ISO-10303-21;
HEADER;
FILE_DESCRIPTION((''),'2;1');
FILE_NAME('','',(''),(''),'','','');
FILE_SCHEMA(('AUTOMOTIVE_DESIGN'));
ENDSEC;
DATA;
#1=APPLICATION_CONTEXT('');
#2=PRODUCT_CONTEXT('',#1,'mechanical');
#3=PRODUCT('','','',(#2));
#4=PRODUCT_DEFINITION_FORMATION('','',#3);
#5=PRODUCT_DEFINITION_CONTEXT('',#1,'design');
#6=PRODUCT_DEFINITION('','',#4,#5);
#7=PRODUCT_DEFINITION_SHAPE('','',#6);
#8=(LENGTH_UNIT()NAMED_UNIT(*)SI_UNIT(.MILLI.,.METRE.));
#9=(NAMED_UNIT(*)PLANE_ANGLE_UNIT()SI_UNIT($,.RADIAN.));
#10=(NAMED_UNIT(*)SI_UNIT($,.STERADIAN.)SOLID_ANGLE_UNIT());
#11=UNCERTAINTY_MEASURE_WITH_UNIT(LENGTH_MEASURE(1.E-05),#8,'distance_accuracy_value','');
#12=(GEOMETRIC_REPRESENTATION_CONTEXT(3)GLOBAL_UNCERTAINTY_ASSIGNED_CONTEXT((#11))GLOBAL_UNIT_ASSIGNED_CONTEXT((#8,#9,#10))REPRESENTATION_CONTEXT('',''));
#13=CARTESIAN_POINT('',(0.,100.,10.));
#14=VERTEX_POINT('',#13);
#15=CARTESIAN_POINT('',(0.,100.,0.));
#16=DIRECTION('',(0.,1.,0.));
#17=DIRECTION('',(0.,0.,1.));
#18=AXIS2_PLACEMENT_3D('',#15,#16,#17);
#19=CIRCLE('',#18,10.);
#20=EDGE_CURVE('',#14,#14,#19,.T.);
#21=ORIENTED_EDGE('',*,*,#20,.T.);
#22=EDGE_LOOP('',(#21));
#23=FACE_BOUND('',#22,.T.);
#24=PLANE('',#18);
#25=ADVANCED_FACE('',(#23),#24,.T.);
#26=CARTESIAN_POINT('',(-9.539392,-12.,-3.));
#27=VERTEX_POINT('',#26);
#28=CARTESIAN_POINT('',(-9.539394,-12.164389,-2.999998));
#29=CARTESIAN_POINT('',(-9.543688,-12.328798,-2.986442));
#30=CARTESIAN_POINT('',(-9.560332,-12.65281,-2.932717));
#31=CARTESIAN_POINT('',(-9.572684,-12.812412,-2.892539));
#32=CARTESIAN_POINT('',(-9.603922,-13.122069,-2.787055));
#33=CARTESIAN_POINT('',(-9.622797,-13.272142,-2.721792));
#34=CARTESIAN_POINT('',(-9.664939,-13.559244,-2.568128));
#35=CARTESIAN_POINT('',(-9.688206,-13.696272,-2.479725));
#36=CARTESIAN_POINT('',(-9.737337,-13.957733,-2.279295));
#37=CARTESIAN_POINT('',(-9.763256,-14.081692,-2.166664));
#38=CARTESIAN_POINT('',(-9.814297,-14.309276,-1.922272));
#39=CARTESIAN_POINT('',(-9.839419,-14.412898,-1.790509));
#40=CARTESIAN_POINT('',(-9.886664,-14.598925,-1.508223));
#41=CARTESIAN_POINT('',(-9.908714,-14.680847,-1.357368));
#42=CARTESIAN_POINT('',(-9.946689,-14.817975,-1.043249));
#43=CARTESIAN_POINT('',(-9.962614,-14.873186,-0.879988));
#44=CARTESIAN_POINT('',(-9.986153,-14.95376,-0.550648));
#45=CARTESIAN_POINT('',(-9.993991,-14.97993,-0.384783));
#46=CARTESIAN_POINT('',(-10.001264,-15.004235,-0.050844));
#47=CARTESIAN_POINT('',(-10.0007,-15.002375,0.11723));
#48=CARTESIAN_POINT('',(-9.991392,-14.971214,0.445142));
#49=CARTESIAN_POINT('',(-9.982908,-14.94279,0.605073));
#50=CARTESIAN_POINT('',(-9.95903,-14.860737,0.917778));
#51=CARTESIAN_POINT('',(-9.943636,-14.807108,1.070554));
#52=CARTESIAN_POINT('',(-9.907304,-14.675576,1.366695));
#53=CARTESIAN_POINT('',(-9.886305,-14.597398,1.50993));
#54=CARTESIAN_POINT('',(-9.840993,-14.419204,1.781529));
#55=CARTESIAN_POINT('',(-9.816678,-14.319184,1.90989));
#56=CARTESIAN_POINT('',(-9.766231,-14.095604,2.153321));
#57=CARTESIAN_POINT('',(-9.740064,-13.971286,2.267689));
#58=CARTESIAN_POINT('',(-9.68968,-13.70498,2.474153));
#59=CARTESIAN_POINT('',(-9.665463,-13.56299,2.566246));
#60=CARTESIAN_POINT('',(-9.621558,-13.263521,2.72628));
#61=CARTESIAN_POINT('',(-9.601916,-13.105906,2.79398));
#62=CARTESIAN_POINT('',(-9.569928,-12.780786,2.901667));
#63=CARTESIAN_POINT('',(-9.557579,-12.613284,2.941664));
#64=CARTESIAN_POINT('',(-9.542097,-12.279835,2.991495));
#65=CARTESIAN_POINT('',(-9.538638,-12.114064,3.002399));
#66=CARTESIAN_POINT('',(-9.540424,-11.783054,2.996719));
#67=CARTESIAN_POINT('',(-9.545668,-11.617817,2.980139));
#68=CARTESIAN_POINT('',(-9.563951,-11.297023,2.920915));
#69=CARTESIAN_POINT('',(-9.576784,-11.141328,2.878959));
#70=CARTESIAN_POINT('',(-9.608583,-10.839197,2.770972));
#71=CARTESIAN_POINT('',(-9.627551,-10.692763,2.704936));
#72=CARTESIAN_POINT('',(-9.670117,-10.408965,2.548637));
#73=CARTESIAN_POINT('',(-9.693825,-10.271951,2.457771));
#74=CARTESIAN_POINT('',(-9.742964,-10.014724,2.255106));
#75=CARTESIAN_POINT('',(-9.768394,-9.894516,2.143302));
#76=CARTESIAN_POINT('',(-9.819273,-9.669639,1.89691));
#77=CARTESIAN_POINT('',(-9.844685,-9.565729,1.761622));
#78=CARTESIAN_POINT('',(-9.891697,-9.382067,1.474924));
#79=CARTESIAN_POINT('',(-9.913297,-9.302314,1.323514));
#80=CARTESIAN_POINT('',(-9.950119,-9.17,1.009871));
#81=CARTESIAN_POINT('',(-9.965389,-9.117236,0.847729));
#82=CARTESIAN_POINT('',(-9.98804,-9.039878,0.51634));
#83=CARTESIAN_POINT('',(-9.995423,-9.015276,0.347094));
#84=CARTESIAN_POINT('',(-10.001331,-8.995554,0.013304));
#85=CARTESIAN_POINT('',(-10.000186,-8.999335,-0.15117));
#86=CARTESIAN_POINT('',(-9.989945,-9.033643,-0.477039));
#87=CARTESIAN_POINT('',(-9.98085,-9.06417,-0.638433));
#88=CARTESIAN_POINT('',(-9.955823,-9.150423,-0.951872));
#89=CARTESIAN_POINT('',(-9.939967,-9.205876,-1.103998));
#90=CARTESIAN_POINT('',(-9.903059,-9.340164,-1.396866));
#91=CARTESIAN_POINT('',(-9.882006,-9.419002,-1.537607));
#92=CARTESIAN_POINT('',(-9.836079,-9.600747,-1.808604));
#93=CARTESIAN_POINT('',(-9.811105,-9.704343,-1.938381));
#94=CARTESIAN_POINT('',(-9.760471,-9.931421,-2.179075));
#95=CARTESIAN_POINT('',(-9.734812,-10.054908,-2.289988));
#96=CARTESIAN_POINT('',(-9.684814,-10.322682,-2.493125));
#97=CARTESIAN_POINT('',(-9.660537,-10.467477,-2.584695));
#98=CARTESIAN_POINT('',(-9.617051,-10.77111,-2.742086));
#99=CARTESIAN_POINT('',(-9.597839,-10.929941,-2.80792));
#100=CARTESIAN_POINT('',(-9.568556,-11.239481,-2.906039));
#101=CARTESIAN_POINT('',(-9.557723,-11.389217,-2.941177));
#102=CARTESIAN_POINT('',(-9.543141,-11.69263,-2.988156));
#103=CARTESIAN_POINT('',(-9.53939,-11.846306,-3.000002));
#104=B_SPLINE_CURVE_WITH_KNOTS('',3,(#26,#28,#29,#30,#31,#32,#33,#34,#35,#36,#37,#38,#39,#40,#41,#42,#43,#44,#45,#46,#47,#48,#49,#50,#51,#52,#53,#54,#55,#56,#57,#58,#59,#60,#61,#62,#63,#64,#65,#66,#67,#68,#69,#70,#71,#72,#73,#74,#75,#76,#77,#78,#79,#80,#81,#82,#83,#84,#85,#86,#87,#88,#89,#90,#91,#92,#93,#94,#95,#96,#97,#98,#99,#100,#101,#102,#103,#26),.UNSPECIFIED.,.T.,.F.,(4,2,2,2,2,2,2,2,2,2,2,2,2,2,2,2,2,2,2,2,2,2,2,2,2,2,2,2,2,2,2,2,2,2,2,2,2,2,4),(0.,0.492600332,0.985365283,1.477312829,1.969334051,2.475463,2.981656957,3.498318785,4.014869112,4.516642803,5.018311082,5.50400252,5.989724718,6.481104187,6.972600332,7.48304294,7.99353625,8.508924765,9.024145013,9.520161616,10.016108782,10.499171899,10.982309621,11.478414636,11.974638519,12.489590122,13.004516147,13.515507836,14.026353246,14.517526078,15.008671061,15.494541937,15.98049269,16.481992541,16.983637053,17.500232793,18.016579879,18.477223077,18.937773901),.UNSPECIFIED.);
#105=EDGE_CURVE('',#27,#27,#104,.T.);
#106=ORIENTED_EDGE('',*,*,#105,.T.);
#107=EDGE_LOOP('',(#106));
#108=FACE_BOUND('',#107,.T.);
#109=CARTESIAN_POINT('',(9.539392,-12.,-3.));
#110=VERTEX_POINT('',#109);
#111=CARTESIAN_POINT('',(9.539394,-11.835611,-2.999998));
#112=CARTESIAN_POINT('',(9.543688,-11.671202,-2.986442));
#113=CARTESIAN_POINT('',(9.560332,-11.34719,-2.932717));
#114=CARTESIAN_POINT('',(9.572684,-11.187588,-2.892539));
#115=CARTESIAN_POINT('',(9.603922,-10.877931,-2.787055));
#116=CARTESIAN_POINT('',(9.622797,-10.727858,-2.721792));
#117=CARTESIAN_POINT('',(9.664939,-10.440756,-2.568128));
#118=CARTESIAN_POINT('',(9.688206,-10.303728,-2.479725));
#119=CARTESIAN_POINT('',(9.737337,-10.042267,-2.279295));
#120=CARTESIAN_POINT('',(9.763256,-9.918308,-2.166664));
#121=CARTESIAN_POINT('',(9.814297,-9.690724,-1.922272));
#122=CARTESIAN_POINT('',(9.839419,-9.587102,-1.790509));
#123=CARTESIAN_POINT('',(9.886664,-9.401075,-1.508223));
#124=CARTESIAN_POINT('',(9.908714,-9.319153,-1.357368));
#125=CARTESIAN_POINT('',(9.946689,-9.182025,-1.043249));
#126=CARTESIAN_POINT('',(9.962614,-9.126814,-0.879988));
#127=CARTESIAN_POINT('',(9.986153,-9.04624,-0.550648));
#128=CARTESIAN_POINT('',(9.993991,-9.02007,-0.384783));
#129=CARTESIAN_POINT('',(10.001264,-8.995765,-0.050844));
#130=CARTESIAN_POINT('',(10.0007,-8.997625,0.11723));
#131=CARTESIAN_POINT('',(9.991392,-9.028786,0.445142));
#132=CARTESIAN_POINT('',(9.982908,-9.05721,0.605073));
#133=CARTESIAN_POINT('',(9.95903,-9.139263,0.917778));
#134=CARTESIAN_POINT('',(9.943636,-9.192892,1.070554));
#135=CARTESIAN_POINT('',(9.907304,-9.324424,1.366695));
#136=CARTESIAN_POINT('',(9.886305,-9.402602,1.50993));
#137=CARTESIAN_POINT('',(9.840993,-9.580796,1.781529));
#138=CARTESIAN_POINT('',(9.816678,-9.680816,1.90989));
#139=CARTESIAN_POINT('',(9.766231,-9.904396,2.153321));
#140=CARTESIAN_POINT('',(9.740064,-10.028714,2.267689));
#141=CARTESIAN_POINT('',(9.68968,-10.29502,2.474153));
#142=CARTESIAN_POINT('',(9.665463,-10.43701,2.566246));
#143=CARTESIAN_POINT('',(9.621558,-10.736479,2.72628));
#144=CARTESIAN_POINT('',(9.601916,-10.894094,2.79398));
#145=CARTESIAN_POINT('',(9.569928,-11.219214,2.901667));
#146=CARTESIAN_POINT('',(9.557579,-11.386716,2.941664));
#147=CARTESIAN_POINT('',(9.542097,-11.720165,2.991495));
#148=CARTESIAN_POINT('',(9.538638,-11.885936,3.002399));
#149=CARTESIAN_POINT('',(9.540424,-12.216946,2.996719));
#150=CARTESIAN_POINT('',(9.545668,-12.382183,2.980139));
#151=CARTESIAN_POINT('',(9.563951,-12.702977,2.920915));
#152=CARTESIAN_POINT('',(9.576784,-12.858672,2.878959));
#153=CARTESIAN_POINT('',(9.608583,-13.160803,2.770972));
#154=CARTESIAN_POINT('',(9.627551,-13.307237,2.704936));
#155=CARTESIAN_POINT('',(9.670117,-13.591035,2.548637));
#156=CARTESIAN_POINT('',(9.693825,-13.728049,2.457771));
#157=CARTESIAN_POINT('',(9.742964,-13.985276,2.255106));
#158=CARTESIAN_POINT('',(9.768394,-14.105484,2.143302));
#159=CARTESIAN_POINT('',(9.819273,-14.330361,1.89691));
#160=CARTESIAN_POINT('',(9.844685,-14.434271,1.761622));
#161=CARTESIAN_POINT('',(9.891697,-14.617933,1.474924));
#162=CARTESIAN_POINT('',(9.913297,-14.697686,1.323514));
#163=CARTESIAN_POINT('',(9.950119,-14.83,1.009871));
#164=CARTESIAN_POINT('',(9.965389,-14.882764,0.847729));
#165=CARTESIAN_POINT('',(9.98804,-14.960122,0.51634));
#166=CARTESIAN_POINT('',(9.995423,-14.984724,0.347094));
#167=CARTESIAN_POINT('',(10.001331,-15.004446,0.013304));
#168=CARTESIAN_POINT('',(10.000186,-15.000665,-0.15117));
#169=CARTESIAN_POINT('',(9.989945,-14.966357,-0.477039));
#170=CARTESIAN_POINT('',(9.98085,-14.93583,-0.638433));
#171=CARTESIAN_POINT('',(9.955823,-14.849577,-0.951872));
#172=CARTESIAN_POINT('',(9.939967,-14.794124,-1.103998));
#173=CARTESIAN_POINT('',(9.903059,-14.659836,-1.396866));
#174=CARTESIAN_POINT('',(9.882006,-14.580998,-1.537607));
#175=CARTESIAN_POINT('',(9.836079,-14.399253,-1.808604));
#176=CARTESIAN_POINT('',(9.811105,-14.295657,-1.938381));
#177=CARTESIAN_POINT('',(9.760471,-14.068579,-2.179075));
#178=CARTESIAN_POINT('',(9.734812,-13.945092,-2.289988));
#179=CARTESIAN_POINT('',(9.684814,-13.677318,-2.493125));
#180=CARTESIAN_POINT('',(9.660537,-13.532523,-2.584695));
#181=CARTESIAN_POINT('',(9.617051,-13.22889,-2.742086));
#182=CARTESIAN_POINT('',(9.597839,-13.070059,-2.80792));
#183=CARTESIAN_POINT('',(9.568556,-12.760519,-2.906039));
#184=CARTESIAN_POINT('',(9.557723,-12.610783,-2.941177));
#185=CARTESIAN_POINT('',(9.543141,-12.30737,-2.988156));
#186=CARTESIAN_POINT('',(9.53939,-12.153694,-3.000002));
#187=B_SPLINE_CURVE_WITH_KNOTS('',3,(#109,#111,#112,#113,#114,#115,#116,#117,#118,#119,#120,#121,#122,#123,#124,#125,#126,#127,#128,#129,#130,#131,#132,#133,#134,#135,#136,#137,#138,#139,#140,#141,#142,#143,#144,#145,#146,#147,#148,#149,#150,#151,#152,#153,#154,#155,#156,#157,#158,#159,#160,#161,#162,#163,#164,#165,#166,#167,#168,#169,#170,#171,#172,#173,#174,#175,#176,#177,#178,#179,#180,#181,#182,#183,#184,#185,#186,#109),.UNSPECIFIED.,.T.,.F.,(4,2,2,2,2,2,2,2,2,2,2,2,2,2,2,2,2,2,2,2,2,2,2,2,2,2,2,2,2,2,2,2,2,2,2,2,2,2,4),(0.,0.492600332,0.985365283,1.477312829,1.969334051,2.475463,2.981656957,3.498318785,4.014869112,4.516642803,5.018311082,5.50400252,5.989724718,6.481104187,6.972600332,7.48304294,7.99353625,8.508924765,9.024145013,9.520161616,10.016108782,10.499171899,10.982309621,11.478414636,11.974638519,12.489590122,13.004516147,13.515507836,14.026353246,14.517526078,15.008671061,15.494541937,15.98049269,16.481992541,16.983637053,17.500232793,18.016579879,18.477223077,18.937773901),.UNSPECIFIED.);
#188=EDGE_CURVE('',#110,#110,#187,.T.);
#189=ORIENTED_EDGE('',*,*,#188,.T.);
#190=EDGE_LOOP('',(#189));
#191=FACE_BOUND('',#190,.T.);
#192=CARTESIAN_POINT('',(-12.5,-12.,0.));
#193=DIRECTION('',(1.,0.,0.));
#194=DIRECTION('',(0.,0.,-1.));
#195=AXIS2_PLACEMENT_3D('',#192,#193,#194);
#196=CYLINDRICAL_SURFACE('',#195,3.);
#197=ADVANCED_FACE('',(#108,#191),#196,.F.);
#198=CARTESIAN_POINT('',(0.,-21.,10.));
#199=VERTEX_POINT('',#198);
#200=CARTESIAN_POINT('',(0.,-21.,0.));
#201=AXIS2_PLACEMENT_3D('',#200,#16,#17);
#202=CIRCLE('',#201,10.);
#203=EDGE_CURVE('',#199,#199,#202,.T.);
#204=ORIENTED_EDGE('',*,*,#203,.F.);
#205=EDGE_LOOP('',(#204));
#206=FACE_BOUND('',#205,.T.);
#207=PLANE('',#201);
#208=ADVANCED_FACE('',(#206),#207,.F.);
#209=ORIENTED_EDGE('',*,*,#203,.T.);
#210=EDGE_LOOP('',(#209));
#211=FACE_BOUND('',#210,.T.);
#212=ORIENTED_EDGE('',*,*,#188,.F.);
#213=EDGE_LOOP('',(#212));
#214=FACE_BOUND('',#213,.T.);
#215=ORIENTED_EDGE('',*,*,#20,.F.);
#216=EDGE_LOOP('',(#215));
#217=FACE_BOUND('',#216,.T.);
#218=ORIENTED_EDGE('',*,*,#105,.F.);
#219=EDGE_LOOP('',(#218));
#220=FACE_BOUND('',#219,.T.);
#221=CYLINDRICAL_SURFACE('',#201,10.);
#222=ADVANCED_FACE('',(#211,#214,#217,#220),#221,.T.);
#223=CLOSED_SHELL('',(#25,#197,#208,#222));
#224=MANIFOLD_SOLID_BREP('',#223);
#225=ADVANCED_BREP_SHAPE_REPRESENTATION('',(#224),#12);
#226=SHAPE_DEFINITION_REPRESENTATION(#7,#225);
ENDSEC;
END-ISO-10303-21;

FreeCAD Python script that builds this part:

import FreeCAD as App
import Part
import Sketcher

V = App.Vector

doc = App.newDocument("Part")
params = doc.addObject("Spreadsheet::Sheet", "Params")
for row, (alias, value) in enumerate([
    ("sketch1_diameter", "20 mm"),
    ("pad1_length", "100 mm"),
    ("pad1_length2", "21 mm"),
    ("sketch2_diameter", "6 mm"),
    ("pocket1_length", "25 mm"),
], start=1):
    params.set(f"A{row}", alias)
    params.set(f"B{row}", "=" + value)
    params.setAlias(f"B{row}", alias)

body = doc.addObject("PartDesign::Body", "Body")

# Sketch on XZ plane
sketch1 = body.newObject("Sketcher::SketchObject", "Sketch")
sketch1.AttachmentSupport = (doc.getObject("XZ_Plane"), [""])
sketch1.MapMode = "FlatFace"
sketch1.addGeometry(Part.Circle(V(0, 0, 0), V(0, 0, 1), 10), False)
sketch1.addConstraint(Sketcher.Constraint("Coincident", 0, 3, -1, 1))
sketch1.addConstraint(Sketcher.Constraint("Diameter", 0, 20.0))
sketch1.setExpression("Constraints[1]", "Params.sketch1_diameter")
pad1 = body.newObject("PartDesign::Pad", "Pad")
pad1.Profile = sketch1
pad1.Type = "TwoLengths"
pad1.setExpression("Length", "Params.pad1_length")
pad1.setExpression("Length2", "Params.pad1_length2")
pad1.Reversed = True

# Sketch on YZ plane
sketch2 = body.newObject("Sketcher::SketchObject", "Sketch001")
sketch2.AttachmentSupport = (doc.getObject("YZ_Plane"), [""])
sketch2.MapMode = "FlatFace"
sketch2.addGeometry(Part.Circle(V(-12, 0, 0), V(0, 0, 1), 3), False)
sketch2.addConstraint(Sketcher.Constraint("PointOnObject", 0, 3, -1))
sketch2.addConstraint(Sketcher.Constraint("Diameter", 0, 6.0))
sketch2.addConstraint(Sketcher.Constraint("DistanceX", 0, 3, -1, 1, 12.0))
sketch2.setExpression("Constraints[1]", "Params.sketch2_diameter")
pocket1 = body.newObject("PartDesign::Pocket", "Pocket")
pocket1.Profile = sketch2
pocket1.setExpression("Length", "Params.pocket1_length")
pocket1.Midplane = True

doc.recompute()
